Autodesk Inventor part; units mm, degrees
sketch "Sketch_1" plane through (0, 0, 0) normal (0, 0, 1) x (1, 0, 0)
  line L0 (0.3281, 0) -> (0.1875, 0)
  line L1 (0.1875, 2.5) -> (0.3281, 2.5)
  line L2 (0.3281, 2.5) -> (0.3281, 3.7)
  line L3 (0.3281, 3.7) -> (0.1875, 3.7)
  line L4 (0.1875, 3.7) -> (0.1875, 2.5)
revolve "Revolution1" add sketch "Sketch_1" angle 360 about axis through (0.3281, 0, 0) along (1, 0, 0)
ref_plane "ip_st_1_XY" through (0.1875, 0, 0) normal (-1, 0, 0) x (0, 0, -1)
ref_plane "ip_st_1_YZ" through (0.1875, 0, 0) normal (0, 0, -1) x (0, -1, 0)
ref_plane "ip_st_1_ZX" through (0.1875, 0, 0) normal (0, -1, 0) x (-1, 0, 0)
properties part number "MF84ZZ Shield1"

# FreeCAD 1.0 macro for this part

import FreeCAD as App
import Part
import Sketcher
from FreeCAD import Vector

doc = App.newDocument("Part")
body = doc.addObject("PartDesign::Body", "Body")

# Sketch on XY plane
sketch1 = body.newObject("Sketcher::SketchObject", "Sketch")
sketch1.AttachmentSupport = (doc.getObject("XY_Plane"), [""])
sketch1.MapMode = "FlatFace"
sketch1.addGeometry([
    Part.LineSegment(Vector(0.19, 3.7, 0), Vector(0.19, 2.5, 0)),
    Part.LineSegment(Vector(0.19, 2.5, 0), Vector(0.33, 2.5, 0)),
    Part.LineSegment(Vector(0.33, 2.5, 0), Vector(0.33, 3.7, 0)),
    Part.LineSegment(Vector(0.33, 3.7, 0), Vector(0.19, 3.7, 0)),
], False)
sketch1.addConstraint([
    Sketcher.Constraint("Coincident", 0, 2, 1, 1),
    Sketcher.Constraint("Coincident", 1, 2, 2, 1),
    Sketcher.Constraint("Coincident", 2, 2, 3, 1),
    Sketcher.Constraint("Coincident", 3, 2, 0, 1),
    Sketcher.Constraint("Vertical", 0),
    Sketcher.Constraint("Horizontal", 1),
    Sketcher.Constraint("Vertical", 2),
    Sketcher.Constraint("Horizontal", 3),
    Sketcher.Constraint("DistanceY", 0, 2, 0, 1, 1.2),
    Sketcher.Constraint("DistanceY", -1, 1, 0, 2, 2.5),
    Sketcher.Constraint("DistanceX", 1, 1, 1, 2, 0.1406),
    Sketcher.Constraint("DistanceX", -1, 1, 1, 2, 0.328),
])
revolution = body.newObject("PartDesign::Revolution", "Revolution")
revolution.Profile = sketch1
revolution.ReferenceAxis = (sketch1, ["H_Axis"])
revolution.Angle = 360

doc.recompute()
